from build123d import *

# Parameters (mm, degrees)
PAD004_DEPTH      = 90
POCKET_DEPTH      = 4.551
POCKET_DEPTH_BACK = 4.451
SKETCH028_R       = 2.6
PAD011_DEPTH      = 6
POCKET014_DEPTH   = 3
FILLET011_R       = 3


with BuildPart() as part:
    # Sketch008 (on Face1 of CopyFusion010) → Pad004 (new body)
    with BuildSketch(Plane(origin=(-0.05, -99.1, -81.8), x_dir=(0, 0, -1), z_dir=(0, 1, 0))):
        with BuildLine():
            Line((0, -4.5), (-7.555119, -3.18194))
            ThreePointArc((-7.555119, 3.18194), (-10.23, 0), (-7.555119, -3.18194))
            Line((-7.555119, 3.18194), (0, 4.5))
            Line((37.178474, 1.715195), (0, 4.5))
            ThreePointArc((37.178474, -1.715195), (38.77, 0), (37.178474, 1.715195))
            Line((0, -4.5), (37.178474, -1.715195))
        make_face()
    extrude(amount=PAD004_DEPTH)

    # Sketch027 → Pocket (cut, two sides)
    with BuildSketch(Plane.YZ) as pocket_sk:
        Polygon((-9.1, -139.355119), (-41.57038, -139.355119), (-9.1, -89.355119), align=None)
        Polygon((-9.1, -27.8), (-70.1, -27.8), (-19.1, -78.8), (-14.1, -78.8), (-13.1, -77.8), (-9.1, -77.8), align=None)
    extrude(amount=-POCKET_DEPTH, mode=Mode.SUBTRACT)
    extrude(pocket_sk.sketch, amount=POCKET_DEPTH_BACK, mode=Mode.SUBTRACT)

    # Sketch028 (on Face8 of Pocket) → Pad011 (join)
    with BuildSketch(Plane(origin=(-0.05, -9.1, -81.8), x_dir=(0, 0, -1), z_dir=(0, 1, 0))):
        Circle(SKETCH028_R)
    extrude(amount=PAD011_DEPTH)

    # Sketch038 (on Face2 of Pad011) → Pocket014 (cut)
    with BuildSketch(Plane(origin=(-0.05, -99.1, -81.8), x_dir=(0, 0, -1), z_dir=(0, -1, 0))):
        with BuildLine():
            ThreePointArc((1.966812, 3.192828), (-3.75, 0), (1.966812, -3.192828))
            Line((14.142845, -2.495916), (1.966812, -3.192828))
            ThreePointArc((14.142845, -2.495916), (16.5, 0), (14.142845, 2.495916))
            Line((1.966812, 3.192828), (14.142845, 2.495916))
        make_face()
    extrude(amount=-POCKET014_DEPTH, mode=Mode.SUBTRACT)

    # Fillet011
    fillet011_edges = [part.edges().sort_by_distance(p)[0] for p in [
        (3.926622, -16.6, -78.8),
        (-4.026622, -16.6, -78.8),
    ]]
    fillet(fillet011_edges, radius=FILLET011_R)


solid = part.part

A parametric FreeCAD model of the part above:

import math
import FreeCAD as App
import Part
import Sketcher

V = App.Vector
Q = App.Units.Quantity


def edges_at(feature, points):
    """Names of the edges that pass closest to the given points."""
    edges = feature.Shape.Edges
    near = lambda p: min(range(len(edges)), key=lambda i: edges[i].distToShape(Part.Vertex(*p))[0])
    return sorted({f"Edge{near(p) + 1}" for p in points})


def add_polygon(sketch, points):
    """Adds a closed chain of lines whose ends are joined by coincident constraints."""
    first, n = sketch.GeometryCount, len(points)
    for a, b in zip(points, points[1:] + points[:1]):
        sketch.addGeometry(Part.LineSegment(App.Vector(*a, 0), App.Vector(*b, 0)), False)
    for i in range(n):
        sketch.addConstraint(Sketcher.Constraint("Coincident", first + i, 2, first + (i + 1) % n, 1))

doc = App.newDocument("Part")
body = doc.addObject("PartDesign::Body", "Body")

sketch1 = doc.addObject("Sketcher::SketchObject", "Sketch")
body.addObject(sketch1)
sketch1.AttachmentSupport = (doc.XZ_Plane, [""])
sketch1.MapMode = "FlatFace"
sketch1.AttachmentOffset = App.Placement(V(0, 0, 99.1), App.Rotation())
sketch1.addGeometry(Part.LineSegment(V(3.1, -74.2, 0), V(4.5, -81.8, 0)), False)
sketch1.addGeometry(Part.LineSegment(V(4.5, -81.8, 0), V(1.7, -119, 0)), False)
sketch1.addGeometry(Part.ArcOfCircle(Part.Circle(V(-0.1, -118.9, 0), V(0, 0, 1), 1.7), math.radians(-176), math.radians(-4)), False)
sketch1.addGeometry(Part.LineSegment(V(-1.8, -119, 0), V(-4.5, -81.8, 0)), False)
sketch1.addGeometry(Part.LineSegment(V(-4.5, -81.8, 0), V(-3.2, -74.2, 0)), False)
sketch1.addGeometry(Part.ArcOfCircle(Part.Circle(V(-0.1, -74.8, 0), V(0, 0, 1), 3.2), math.radians(10), math.radians(170)), False)
sketch1.addConstraint(Sketcher.Constraint("Coincident", 0, 2, 1, 1))
sketch1.addConstraint(Sketcher.Constraint("Tangent", 1, 2, 2, 2))
sketch1.addConstraint(Sketcher.Constraint("Tangent", 2, 1, 3, 1))
sketch1.addConstraint(Sketcher.Constraint("Coincident", 3, 2, 4, 1))
sketch1.addConstraint(Sketcher.Constraint("Tangent", 4, 2, 5, 2))
sketch1.addConstraint(Sketcher.Constraint("Tangent", 5, 1, 0, 1))
sketch1.addConstraint(Sketcher.Constraint("Horizontal", 1, 2, 2, 1))
sketch1.addConstraint(Sketcher.Constraint("Horizontal", 0, 2, 3, 2))
sketch1.addConstraint(Sketcher.Constraint("Horizontal", 4, 2, 5, 1))
sketch1.addConstraint(Sketcher.Constraint("Radius", 2, 1.72))
sketch1.addConstraint(Sketcher.Constraint("Radius", 5, 3.23))
sketch1.addConstraint(Sketcher.Constraint("DistanceY", 0, 2, 5, 3, 7.0))
sketch1.addConstraint(Sketcher.Constraint("DistanceX", 3, 2, 0, 2, 9.0))
sketch1.addConstraint(Sketcher.Constraint("DistanceY", 5, 3, -1, 1, 74.8))
sketch1.addConstraint(Sketcher.Constraint("DistanceX", 2, 3, -1, 1, 0.05))
sketch1.addConstraint(Sketcher.Constraint("DistanceY", 2, 3, -1, 1, 118.85))
pad1 = doc.addObject("PartDesign::Pad", "Pad")
body.addObject(pad1)
pad1.Profile = sketch1
pad1.Length = 90
pad1.Reversed = True

sketch2 = doc.addObject("Sketcher::SketchObject", "Sketch001")
body.addObject(sketch2)
sketch2.AttachmentSupport = (doc.YZ_Plane, [""])
sketch2.MapMode = "FlatFace"
add_polygon(sketch2, [(-41.6, -139.4), (-9.1, -139.4), (-9.1, -89.4)])
add_polygon(sketch2, [(-9.1, -27.8), (-70.1, -27.8), (-19.1, -78.8), (-14.1, -78.8), (-13.1, -77.8), (-9.1, -77.8)])
sketch2.addConstraint(Sketcher.Constraint("Horizontal", 0))
sketch2.addConstraint(Sketcher.Constraint("Vertical", 1))
sketch2.addConstraint(Sketcher.Constraint("Horizontal", 3))
sketch2.addConstraint(Sketcher.Constraint("Horizontal", 5))
sketch2.addConstraint(Sketcher.Constraint("Horizontal", 7))
sketch2.addConstraint(Sketcher.Constraint("Vertical", 8))
sketch2.addConstraint(Sketcher.Constraint("Perpendicular", 4, 6))
sketch2.addConstraint(Sketcher.Constraint("Vertical", 1, 2, 7, 2))
sketch2.addConstraint(Sketcher.Constraint("Equal", 1, 8))
sketch2.addConstraint(Sketcher.Constraint("DistanceX", 3, 2, 3, 1, 61.0))
sketch2.addConstraint(Sketcher.Constraint("DistanceX", 5, 1, 5, 2, 5.0))
sketch2.addConstraint(Sketcher.Constraint("DistanceX", 7, 1, 7, 2, 4.0))
sketch2.addConstraint(Sketcher.Constraint("DistanceY", 1, 1, 1, 2, 50.0))
sketch2.addConstraint(Sketcher.Constraint("Angle", 2, Q("-123 deg")))
sketch2.addConstraint(Sketcher.Constraint("Angle", 4, Q("-45 deg")))
sketch2.addConstraint(Sketcher.Constraint("DistanceX", 0, 2, -1, 1, 9.1))
sketch2.addConstraint(Sketcher.Constraint("DistanceY", 3, 2, -1, 1, 27.8))
sketch2.addConstraint(Sketcher.Constraint("DistanceY", 0, 2, -1, 1, 139.355119))
pocket1 = doc.addObject("PartDesign::Pocket", "Pocket")
body.addObject(pocket1)
pocket1.Profile = sketch2
pocket1.Type = "ThroughAll"
pocket1.Midplane = True

sketch3 = doc.addObject("Sketcher::SketchObject", "Sketch002")
body.addObject(sketch3)
sketch3.AttachmentSupport = (doc.XZ_Plane, [""])
sketch3.MapMode = "FlatFace"
sketch3.AttachmentOffset = App.Placement(V(0, 0, 9.1), App.Rotation())
sketch3.addGeometry(Part.Circle(V(-0.1, -81.8, 0), V(0, 0, 1), 2.6), False)
sketch3.addConstraint(Sketcher.Constraint("Diameter", 0, 5.2))
sketch3.addConstraint(Sketcher.Constraint("DistanceY", 0, 3, -1, 1, 81.8))
sketch3.addConstraint(Sketcher.Constraint("DistanceX", 0, 3, -1, 1, 0.05))
pad2 = doc.addObject("PartDesign::Pad", "Pad001")
body.addObject(pad2)
pad2.Profile = sketch3
pad2.Length = 6
pad2.Reversed = True

sketch4 = doc.addObject("Sketcher::SketchObject", "Sketch003")
body.addObject(sketch4)
sketch4.AttachmentSupport = (doc.XZ_Plane, [""])
sketch4.MapMode = "FlatFace"
sketch4.AttachmentOffset = App.Placement(V(0, 0, 99.1), App.Rotation())
sketch4.addGeometry(Part.ArcOfCircle(Part.Circle(V(-0.1, -81.8, 0), V(0, 0, 1), 3.8), math.radians(-32), math.radians(212)), False)
sketch4.addGeometry(Part.LineSegment(V(-3.2, -83.8, 0), V(-2.5, -95.9, 0)), False)
sketch4.addGeometry(Part.ArcOfCircle(Part.Circle(V(-0.1, -95.8, 0), V(0, 0, 1), 2.5), math.radians(-177), math.radians(-3)), False)
sketch4.addGeometry(Part.LineSegment(V(2.4, -95.9, 0), V(3.1, -83.8, 0)), False)
sketch4.addConstraint(Sketcher.Constraint("Coincident", 0, 2, 1, 1))
sketch4.addConstraint(Sketcher.Constraint("Coincident", 1, 2, 2, 1))
sketch4.addConstraint(Sketcher.Constraint("Coincident", 2, 2, 3, 1))
sketch4.addConstraint(Sketcher.Constraint("Coincident", 3, 2, 0, 1))
sketch4.addConstraint(Sketcher.Constraint("Horizontal", 1, 2, 2, 2))
sketch4.addConstraint(Sketcher.Constraint("Horizontal", 0, 2, 3, 2))
sketch4.addConstraint(Sketcher.Constraint("Vertical", 0, 3, 2, 3))
sketch4.addConstraint(Sketcher.Constraint("Radius", 2, 2.5))
sketch4.addConstraint(Sketcher.Constraint("Radius", 0, 3.75))
sketch4.addConstraint(Sketcher.Constraint("DistanceY", 2, 3, 0, 3, 14.0))
sketch4.addConstraint(Sketcher.Constraint("DistanceY", 0, 3, -1, 1, 81.8))
sketch4.addConstraint(Sketcher.Constraint("DistanceX", 0, 3, -1, 1, 0.05))
sketch4.addConstraint(Sketcher.Constraint("Distance", 1, 12.195961))
sketch4.addConstraint(Sketcher.Constraint("DistanceY", 0, 2, -1, 1, 83.766812))
pocket2 = doc.addObject("PartDesign::Pocket", "Pocket001")
body.addObject(pocket2)
pocket2.Profile = sketch4
pocket2.Length = 3
doc.recompute()

fillet = doc.addObject("PartDesign::Fillet", "Fillet")
body.addObject(fillet)
fillet.Base = (pocket2, edges_at(pocket2, [(3.927, -16.6, -78.8), (-4.027, -16.6, -78.8)]))
fillet.Radius = 3

doc.recompute()
